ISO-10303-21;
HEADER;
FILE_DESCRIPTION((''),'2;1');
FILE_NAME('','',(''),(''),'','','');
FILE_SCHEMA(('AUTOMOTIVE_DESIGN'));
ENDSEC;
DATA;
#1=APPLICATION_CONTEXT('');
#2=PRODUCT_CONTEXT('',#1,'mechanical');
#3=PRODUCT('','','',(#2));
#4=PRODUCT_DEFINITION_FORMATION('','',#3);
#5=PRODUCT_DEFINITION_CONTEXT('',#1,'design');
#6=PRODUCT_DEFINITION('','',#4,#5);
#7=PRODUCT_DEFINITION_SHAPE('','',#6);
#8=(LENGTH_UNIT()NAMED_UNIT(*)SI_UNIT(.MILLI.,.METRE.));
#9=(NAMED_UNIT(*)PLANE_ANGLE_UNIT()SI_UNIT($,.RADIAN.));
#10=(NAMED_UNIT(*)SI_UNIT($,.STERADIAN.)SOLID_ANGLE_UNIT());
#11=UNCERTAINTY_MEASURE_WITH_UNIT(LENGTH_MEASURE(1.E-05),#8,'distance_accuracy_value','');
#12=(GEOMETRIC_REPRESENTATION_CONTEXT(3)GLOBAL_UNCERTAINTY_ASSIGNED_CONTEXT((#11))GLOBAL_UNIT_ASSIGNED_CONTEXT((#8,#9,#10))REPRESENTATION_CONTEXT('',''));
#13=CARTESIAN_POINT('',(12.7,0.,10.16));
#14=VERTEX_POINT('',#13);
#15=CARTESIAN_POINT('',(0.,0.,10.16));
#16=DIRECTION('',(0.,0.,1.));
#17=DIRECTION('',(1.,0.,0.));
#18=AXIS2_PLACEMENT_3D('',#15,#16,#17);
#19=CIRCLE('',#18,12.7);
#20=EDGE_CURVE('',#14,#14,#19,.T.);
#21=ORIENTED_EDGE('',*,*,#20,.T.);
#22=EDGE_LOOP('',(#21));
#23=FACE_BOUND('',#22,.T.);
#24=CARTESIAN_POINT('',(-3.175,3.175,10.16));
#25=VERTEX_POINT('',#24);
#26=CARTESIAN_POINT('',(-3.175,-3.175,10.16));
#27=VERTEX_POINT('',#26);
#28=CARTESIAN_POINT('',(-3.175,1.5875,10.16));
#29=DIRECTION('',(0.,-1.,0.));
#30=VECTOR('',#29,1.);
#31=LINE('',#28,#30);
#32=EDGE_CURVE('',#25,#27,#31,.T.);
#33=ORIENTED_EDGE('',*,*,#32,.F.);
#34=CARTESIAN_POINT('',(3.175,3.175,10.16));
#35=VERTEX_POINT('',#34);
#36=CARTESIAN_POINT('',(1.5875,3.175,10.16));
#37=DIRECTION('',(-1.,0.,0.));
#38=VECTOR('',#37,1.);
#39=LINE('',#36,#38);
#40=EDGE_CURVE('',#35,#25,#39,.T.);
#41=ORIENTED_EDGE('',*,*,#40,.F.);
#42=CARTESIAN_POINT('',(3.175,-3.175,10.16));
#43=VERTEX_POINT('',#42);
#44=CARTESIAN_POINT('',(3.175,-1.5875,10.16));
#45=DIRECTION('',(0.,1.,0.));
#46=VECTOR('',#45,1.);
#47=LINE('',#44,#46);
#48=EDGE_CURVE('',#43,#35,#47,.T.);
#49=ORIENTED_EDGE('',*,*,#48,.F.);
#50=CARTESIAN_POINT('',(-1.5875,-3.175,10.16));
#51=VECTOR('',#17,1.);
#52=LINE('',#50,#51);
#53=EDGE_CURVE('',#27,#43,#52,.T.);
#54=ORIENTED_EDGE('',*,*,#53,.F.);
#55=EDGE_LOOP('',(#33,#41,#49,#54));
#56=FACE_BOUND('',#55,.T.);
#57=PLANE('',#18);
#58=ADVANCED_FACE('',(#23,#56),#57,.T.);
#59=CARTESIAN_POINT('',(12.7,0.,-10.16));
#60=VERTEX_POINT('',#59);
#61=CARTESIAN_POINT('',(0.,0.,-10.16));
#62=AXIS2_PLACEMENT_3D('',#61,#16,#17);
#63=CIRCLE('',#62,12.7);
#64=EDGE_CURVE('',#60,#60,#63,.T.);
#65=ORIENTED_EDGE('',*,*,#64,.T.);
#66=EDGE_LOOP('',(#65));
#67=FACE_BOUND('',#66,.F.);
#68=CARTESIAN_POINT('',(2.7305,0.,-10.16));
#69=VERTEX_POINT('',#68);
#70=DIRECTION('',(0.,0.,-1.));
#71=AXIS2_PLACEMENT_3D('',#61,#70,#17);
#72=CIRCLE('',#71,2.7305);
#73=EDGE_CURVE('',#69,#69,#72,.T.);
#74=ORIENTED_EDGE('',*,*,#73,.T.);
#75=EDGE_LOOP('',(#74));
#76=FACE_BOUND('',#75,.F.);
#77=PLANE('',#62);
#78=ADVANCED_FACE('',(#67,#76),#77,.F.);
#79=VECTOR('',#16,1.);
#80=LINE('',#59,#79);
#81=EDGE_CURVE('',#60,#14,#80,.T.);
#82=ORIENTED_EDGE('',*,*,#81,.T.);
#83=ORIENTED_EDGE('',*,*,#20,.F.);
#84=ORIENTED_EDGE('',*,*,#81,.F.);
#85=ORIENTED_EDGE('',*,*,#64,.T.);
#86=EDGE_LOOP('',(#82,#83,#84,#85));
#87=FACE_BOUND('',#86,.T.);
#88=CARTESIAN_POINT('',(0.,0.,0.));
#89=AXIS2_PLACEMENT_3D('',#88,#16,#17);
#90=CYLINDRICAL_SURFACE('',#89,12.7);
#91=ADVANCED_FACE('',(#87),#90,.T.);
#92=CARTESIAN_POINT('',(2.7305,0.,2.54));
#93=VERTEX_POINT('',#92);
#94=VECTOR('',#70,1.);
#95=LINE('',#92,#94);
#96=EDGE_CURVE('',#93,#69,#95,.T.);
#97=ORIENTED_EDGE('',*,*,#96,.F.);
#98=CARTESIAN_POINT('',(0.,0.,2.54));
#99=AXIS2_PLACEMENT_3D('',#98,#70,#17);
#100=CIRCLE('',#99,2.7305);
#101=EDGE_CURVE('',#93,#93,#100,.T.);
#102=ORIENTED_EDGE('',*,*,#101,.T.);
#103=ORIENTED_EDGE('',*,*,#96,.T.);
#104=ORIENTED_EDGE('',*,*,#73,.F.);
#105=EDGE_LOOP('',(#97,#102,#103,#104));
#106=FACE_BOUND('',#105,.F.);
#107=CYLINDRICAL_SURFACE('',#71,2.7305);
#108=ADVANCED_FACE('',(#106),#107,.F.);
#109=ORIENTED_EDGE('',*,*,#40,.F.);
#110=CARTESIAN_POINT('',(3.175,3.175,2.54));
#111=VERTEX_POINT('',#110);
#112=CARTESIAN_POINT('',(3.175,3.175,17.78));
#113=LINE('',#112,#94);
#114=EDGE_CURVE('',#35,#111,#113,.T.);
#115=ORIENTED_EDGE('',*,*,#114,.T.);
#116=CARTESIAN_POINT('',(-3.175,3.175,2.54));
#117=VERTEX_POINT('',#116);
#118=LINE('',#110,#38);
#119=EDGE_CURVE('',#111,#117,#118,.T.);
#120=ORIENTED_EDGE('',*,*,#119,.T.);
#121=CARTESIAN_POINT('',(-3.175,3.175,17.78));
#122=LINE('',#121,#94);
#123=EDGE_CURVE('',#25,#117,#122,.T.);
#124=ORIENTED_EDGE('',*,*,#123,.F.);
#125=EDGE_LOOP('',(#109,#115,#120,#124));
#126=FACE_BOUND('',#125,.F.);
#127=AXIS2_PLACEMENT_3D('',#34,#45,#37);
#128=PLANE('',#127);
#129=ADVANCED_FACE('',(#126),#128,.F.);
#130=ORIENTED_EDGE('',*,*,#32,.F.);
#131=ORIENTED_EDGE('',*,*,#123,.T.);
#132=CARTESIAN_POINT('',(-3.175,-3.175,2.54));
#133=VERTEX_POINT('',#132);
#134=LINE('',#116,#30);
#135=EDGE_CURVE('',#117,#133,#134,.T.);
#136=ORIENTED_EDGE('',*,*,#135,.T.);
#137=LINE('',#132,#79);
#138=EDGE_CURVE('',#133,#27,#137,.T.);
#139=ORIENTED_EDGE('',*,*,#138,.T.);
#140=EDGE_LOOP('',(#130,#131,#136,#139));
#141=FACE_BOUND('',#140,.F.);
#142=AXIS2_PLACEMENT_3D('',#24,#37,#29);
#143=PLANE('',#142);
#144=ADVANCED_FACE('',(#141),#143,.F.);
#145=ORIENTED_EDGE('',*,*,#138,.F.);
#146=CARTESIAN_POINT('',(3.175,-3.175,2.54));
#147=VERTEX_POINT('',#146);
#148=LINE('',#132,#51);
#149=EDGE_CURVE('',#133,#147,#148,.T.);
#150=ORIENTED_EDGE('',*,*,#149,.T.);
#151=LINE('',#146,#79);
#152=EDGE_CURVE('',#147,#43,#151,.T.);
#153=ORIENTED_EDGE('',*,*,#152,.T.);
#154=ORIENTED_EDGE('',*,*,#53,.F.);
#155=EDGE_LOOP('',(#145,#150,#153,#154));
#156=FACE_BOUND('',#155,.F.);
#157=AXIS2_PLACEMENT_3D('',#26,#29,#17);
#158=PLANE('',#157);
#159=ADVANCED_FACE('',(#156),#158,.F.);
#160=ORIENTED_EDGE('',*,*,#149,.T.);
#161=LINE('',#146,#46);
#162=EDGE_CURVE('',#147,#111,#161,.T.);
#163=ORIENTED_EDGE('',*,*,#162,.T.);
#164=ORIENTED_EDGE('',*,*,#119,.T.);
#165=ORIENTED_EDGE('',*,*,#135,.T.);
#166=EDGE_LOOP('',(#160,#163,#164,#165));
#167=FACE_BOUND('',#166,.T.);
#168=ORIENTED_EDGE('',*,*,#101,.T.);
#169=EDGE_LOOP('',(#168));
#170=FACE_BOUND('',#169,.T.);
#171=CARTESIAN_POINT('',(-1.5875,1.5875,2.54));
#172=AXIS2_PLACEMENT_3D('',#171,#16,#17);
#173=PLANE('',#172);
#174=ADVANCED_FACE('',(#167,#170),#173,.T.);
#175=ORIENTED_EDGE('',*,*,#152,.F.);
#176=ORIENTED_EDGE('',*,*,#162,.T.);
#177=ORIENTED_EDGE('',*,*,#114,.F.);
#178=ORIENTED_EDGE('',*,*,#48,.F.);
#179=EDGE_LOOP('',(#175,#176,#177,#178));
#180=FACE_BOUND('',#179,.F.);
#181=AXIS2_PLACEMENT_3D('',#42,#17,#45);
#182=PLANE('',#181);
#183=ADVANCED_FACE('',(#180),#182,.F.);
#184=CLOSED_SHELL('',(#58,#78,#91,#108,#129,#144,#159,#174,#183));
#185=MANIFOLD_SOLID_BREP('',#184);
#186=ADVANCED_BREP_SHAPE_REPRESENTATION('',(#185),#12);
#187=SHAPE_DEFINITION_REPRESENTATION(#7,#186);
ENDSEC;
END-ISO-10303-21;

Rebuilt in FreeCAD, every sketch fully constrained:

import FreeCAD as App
import Part
import Sketcher
Q = App.Units.Quantity


def add_polygon(sketch, points):
    """Adds a closed chain of lines whose ends are joined by coincident constraints."""
    first, n = sketch.GeometryCount, len(points)
    for a, b in zip(points, points[1:] + points[:1]):
        sketch.addGeometry(Part.LineSegment(App.Vector(*a, 0), App.Vector(*b, 0)), False)
    for i in range(n):
        sketch.addConstraint(Sketcher.Constraint("Coincident", first + i, 2, first + (i + 1) % n, 1))

doc = App.newDocument("Part")
body = doc.addObject("PartDesign::Body", "Body")

# Sketch on XY plane
sketch1 = body.newObject("Sketcher::SketchObject", "Sketch")
sketch1.AttachmentSupport = (doc.getObject("XY_Plane"), [""])
sketch1.MapMode = "FlatFace"
sketch1.addGeometry(Part.Circle(App.Vector(0, 0, 0), App.Vector(0, 0, 1), 12.7), False)
sketch1.addConstraint(Sketcher.Constraint("Coincident", 0, 3, -1, 1))
sketch1.addConstraint(Sketcher.Constraint("Diameter", 0, Q("1 in")))
pad1 = body.newObject("PartDesign::Pad", "Pad")
pad1.Profile = sketch1
pad1.Length = Q("0.8 in")
pad1.Midplane = True

# Sketch on XY plane
sketch2 = body.newObject("Sketcher::SketchObject", "Sketch001")
sketch2.AttachmentSupport = (doc.getObject("XY_Plane"), [""])
sketch2.MapMode = "FlatFace"
sketch2.AttachmentOffset = App.Placement(App.Vector(0, 0, 0.4 * 25.4), App.Rotation())
add_polygon(sketch2, [(-3.175, 3.175), (-3.175, -3.175), (3.175, -3.175), (3.175, 3.175)])  # lines 0-3
sketch2.addConstraint(Sketcher.Constraint("Vertical", 0))
sketch2.addConstraint(Sketcher.Constraint("Horizontal", 1))
sketch2.addConstraint(Sketcher.Constraint("Vertical", 2))
sketch2.addConstraint(Sketcher.Constraint("Horizontal", 3))
sketch2.addConstraint(Sketcher.Constraint("Symmetric", 0, 2, 2, 2, -1, 1))
sketch2.addConstraint(Sketcher.Constraint("Equal", 3, 0))
sketch2.addConstraint(Sketcher.Constraint("DistanceX", 1, 1, 1, 2, Q("0.25 in")))
pocket1 = body.newObject("PartDesign::Pocket", "Pocket")
pocket1.Profile = sketch2
pocket1.Length = Q("0.6 in")
pocket1.Midplane = True

# Sketch on XY plane
sketch3 = body.newObject("Sketcher::SketchObject", "Sketch002")
sketch3.AttachmentSupport = (doc.getObject("XY_Plane"), [""])
sketch3.MapMode = "FlatFace"
sketch3.AttachmentOffset = App.Placement(App.Vector(0, 0, -0.4 * 25.4), App.Rotation())
sketch3.addGeometry(Part.Circle(App.Vector(0, 0, 0), App.Vector(0, 0, 1), 2.7305), False)
sketch3.addConstraint(Sketcher.Constraint("Coincident", 0, 3, -1, 1))
sketch3.addConstraint(Sketcher.Constraint("Diameter", 0, Q("0.215 in")))
pocket2 = body.newObject("PartDesign::Pocket", "Pocket001")
pocket2.Profile = sketch3
pocket2.Length = Q("1 in")
pocket2.Midplane = True

doc.recompute()
